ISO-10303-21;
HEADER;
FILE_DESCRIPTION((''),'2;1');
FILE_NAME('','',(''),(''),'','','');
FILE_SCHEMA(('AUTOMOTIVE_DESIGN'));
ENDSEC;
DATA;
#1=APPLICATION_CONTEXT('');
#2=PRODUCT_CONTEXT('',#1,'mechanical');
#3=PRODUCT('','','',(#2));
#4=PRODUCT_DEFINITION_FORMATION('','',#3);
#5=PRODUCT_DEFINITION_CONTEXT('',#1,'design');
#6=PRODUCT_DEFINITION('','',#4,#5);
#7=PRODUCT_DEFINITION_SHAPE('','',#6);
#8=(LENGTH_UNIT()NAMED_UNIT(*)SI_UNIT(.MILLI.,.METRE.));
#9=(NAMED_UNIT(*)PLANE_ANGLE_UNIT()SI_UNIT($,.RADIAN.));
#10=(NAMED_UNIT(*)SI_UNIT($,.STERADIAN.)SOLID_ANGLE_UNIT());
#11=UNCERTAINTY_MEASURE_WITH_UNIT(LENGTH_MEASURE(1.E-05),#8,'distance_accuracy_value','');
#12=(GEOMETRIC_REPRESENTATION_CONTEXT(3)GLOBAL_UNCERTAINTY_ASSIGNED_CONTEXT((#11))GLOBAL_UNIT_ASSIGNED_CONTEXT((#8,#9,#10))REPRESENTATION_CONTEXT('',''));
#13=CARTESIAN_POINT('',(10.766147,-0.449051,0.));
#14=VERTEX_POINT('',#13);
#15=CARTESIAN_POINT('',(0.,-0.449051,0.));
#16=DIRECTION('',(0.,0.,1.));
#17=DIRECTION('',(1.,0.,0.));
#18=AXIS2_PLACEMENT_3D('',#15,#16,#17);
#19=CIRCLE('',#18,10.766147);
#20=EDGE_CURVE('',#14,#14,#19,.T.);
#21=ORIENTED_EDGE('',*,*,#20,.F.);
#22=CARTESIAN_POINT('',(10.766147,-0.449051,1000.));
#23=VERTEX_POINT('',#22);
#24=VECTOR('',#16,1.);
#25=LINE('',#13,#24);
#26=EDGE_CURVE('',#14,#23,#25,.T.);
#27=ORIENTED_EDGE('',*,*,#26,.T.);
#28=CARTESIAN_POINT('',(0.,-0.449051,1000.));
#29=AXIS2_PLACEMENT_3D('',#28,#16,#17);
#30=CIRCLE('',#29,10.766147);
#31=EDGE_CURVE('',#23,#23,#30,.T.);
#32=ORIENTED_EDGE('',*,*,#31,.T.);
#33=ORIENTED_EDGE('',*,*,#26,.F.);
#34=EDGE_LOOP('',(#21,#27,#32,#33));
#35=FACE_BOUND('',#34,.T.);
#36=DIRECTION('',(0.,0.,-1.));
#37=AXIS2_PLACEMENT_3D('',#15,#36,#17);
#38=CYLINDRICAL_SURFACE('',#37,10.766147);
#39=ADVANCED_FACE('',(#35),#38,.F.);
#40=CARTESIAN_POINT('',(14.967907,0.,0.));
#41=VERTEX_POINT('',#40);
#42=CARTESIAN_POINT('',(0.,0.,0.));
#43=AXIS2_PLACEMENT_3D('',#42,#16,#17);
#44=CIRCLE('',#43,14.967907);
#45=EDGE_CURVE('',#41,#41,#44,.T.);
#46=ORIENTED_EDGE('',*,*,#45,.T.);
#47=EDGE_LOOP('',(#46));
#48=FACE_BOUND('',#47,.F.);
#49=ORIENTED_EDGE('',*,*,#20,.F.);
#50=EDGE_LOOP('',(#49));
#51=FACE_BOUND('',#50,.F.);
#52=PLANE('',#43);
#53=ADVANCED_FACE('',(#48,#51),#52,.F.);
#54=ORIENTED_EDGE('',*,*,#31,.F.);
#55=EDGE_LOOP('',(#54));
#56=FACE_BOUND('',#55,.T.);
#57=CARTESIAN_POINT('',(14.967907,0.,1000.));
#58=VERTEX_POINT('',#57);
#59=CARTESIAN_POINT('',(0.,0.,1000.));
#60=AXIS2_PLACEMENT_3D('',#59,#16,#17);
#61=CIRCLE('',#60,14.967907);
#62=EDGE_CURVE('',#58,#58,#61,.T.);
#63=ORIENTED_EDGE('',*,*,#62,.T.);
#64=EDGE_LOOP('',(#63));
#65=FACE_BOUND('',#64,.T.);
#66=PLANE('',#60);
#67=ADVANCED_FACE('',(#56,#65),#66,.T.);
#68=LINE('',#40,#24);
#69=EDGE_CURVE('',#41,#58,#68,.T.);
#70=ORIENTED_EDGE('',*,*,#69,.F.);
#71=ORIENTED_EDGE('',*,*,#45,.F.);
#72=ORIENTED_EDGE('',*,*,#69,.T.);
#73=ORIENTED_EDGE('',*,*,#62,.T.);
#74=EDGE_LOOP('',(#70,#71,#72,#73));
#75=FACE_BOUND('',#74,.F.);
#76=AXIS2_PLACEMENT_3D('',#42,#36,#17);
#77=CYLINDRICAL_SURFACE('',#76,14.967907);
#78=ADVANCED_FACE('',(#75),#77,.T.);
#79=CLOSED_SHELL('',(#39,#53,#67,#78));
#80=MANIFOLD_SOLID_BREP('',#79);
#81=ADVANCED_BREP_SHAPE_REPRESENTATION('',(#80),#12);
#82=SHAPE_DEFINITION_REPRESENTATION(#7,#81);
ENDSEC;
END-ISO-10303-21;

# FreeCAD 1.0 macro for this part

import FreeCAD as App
import Part
import Sketcher

V = App.Vector

doc = App.newDocument("Part")
body = doc.addObject("PartDesign::Body", "Body")

sketch1 = doc.addObject("Sketcher::SketchObject", "Sketch")
body.addObject(sketch1)
sketch1.AttachmentSupport = (doc.XY_Plane, [""])
sketch1.MapMode = "FlatFace"
sketch1.addGeometry([
    Part.Circle(V(0, 0, 0), V(0, 0, 1), 15),
    Part.Circle(V(0, 0, 0), V(0, 0, 1), 11),
], False)
sketch1.addConstraint([
    Sketcher.Constraint("Coincident", 0, 3, -1, 1),
    Sketcher.Constraint("PointOnObject", 1, 3, -2),
    Sketcher.Constraint("Diameter", 0, 29.935814),
    Sketcher.Constraint("Diameter", 1, 21.532294),
    Sketcher.Constraint("DistanceY", 1, 3, -1, 1, 0.449051),
])
pad1 = doc.addObject("PartDesign::Pad", "Pad")
body.addObject(pad1)
pad1.Profile = sketch1
pad1.Length = 1000

doc.recompute()
